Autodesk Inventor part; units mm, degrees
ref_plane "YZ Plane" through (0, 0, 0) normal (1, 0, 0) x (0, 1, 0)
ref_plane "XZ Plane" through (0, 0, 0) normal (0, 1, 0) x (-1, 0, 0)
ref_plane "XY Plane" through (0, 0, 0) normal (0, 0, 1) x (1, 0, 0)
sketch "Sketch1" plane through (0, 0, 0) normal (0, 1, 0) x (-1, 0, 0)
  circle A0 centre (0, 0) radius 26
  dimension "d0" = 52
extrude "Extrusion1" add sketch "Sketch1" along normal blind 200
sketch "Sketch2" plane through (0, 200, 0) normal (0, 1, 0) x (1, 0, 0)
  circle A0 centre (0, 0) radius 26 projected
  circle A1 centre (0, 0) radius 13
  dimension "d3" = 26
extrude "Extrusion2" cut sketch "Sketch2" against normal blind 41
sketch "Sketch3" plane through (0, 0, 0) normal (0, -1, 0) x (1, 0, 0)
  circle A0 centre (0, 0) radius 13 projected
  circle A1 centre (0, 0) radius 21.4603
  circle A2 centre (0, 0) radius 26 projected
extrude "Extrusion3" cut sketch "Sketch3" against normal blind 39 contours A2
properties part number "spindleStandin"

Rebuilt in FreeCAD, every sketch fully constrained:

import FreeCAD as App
import Part
import Sketcher

V = App.Vector
Q = App.Units.Quantity

doc = App.newDocument("Part")
body = doc.addObject("PartDesign::Body", "Body")

sketch1 = body.newObject("Sketcher::SketchObject", "Sketch")
sketch1.AttachmentSupport = (doc.getObject("XZ_Plane"), [""])
sketch1.MapMode = "FlatFace"
sketch1.addGeometry(Part.Circle(V(0, 0, 0), V(0, 0, 1), 26), False)
sketch1.addConstraint([
    Sketcher.Constraint("Coincident", 0, 3, -1, 1),
    Sketcher.Constraint("Diameter", 0, Q("52 mm")),
])
pad1 = body.newObject("PartDesign::Pad", "Pad")
pad1.Profile = sketch1
pad1.Length = 200
pad1.Reversed = True

sketch2 = body.newObject("Sketcher::SketchObject", "Sketch001")
sketch2.AttachmentSupport = (doc.getObject("XZ_Plane"), [""])
sketch2.MapMode = "FlatFace"
sketch2.AttachmentOffset = App.Placement(V(0, 0, -200), App.Rotation())
sketch2.addGeometry([
    Part.Circle(V(0, 0, 0), V(0, 0, 1), 26),
    Part.Circle(V(0, 0, 0), V(0, 0, 1), 13),
], False)
sketch2.addConstraint([
    Sketcher.Constraint("Coincident", 0, 3, -1, 1),
    Sketcher.Constraint("Coincident", 1, 3, -1, 1),
    Sketcher.Constraint("Diameter", 0, Q("52 mm")),
    Sketcher.Constraint("Diameter", 1, Q("26 mm")),
])
pocket1 = body.newObject("PartDesign::Pocket", "Pocket")
pocket1.Profile = sketch2
pocket1.Length = 41
pocket1.Reversed = True

sketch3 = body.newObject("Sketcher::SketchObject", "Sketch002")
sketch3.AttachmentSupport = (doc.getObject("XZ_Plane"), [""])
sketch3.MapMode = "FlatFace"
sketch3.addGeometry([
    Part.Circle(V(0, 0, 0), V(0, 0, 1), 26),
    Part.Circle(V(0, 0, 0), V(0, 0, 1), 21),
], False)
sketch3.addConstraint([
    Sketcher.Constraint("Coincident", 0, 3, -1, 1),
    Sketcher.Constraint("Coincident", 1, 3, -1, 1),
    Sketcher.Constraint("Diameter", 0, Q("52 mm")),
    Sketcher.Constraint("Diameter", 1, Q("42.9206 mm")),
])
pocket2 = body.newObject("PartDesign::Pocket", "Pocket001")
pocket2.Profile = sketch3
pocket2.Length = 39

doc.recompute()
